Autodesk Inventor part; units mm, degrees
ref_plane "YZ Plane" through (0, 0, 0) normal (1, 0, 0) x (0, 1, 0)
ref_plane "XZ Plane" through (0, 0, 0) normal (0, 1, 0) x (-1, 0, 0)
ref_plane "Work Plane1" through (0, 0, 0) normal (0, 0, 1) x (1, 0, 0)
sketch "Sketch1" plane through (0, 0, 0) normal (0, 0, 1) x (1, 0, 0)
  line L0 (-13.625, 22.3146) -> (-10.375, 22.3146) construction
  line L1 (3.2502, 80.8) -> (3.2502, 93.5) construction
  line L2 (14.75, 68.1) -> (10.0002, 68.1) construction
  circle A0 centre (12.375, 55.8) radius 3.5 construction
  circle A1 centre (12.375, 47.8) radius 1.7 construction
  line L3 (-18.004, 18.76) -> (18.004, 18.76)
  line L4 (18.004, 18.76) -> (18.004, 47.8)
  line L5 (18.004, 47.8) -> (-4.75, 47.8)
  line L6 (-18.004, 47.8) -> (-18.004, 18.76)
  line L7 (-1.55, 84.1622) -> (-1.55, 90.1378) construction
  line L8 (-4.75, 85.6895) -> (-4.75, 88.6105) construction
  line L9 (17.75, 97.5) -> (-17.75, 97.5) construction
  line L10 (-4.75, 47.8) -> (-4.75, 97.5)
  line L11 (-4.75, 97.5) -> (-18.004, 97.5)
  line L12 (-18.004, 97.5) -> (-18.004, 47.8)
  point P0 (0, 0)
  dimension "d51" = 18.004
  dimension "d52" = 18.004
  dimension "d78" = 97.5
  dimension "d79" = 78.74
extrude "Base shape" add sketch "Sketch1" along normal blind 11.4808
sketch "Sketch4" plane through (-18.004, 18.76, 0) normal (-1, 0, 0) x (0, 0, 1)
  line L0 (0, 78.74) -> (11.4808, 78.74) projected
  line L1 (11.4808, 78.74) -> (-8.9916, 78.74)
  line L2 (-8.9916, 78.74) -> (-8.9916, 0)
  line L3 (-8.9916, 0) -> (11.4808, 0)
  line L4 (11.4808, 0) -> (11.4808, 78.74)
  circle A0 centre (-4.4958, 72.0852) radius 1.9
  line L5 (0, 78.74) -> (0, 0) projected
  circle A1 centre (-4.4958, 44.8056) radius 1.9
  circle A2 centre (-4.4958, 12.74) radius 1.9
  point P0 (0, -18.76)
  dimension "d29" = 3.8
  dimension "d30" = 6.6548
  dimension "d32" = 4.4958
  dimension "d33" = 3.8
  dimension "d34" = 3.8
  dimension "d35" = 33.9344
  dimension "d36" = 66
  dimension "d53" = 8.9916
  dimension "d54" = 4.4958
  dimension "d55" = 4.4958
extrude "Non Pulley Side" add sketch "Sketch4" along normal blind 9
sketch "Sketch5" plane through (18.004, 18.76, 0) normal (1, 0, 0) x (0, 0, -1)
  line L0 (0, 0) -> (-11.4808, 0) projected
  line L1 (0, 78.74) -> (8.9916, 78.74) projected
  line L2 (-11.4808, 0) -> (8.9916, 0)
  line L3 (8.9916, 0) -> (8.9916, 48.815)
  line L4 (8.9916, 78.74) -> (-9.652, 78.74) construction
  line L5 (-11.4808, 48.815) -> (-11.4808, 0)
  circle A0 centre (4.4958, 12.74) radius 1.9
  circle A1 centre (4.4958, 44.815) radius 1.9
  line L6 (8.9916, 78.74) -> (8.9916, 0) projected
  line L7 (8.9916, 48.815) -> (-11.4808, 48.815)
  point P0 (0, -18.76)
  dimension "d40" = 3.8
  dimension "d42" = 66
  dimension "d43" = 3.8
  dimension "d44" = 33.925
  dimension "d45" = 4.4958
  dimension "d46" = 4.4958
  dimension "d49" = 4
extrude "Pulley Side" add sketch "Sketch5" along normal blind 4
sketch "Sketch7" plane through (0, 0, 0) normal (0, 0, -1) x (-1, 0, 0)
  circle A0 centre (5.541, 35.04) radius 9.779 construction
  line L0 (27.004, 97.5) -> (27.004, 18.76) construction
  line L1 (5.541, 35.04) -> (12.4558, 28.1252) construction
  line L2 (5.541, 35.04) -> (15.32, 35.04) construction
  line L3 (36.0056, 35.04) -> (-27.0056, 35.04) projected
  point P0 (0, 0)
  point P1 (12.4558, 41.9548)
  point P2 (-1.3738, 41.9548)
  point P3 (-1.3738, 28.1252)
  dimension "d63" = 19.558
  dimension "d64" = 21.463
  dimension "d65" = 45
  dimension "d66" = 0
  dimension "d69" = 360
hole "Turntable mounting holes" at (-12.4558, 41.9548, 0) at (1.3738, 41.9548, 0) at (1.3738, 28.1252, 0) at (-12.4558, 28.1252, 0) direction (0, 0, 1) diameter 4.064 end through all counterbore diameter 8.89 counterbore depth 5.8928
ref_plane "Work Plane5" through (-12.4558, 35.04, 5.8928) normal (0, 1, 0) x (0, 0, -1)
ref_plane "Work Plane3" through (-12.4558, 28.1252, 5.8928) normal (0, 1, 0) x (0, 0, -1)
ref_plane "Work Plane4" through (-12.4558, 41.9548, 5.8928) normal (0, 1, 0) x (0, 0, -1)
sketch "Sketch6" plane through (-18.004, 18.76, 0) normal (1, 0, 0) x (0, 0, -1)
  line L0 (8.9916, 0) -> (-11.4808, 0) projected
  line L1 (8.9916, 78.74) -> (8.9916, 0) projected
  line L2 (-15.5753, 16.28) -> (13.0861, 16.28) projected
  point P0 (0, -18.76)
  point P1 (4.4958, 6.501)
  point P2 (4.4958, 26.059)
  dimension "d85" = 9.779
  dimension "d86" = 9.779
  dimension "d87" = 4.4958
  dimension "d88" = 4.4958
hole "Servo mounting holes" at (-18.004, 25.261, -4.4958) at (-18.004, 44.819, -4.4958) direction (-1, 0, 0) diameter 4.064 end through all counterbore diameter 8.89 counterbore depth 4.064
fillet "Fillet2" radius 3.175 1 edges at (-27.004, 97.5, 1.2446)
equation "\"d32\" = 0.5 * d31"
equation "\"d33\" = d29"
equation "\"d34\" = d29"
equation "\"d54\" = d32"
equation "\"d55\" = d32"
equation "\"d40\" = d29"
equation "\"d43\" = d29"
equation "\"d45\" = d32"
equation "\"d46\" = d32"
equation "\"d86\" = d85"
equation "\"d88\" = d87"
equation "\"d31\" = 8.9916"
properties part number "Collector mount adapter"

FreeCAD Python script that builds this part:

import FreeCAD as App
import Part
import Sketcher
Q = App.Units.Quantity


def edges_at(feature, points):
    """Names of the edges that pass closest to the given points."""
    edges = feature.Shape.Edges
    near = lambda p: min(range(len(edges)), key=lambda i: edges[i].distToShape(Part.Vertex(*p))[0])
    return sorted({f"Edge{near(p) + 1}" for p in points})


def add_polygon(sketch, points):
    """Adds a closed chain of lines whose ends are joined by coincident constraints."""
    first, n = sketch.GeometryCount, len(points)
    for a, b in zip(points, points[1:] + points[:1]):
        sketch.addGeometry(Part.LineSegment(App.Vector(*a, 0), App.Vector(*b, 0)), False)
    for i in range(n):
        sketch.addConstraint(Sketcher.Constraint("Coincident", first + i, 2, first + (i + 1) % n, 1))

doc = App.newDocument("Part")
body = doc.addObject("PartDesign::Body", "Body")

# Sketch on XY plane
sketch1 = body.newObject("Sketcher::SketchObject", "Sketch")
sketch1.AttachmentSupport = (doc.getObject("XY_Plane"), [""])
sketch1.MapMode = "FlatFace"
add_polygon(sketch1, [(-18.004, 97.5), (-18.004, 18.76), (18.004, 18.76), (18.004, 47.8), (-4.75, 47.8), (-4.75, 97.5)])  # lines 0-5
sketch1.addConstraint(Sketcher.Constraint("Vertical", 0))
sketch1.addConstraint(Sketcher.Constraint("Horizontal", 1))
sketch1.addConstraint(Sketcher.Constraint("Vertical", 2))
sketch1.addConstraint(Sketcher.Constraint("Horizontal", 3))
sketch1.addConstraint(Sketcher.Constraint("Vertical", 4))
sketch1.addConstraint(Sketcher.Constraint("Horizontal", 5))
sketch1.addConstraint(Sketcher.Constraint("DistanceY", 0, 2, 0, 1, Q("3.1 in")))
sketch1.addConstraint(Sketcher.Constraint("DistanceX", 0, 2, -1, 1, Q("18.004 mm")))
sketch1.addConstraint(Sketcher.Constraint("DistanceX", -1, 1, 1, 2, Q("18.004 mm")))
sketch1.addConstraint(Sketcher.Constraint("DistanceY", -1, 1, 4, 2, Q("97.5 mm")))
sketch1.addConstraint(Sketcher.Constraint("DistanceX", 5, 2, 5, 1, Q("0.5218 in")))
sketch1.addConstraint(Sketcher.Constraint("DistanceY", 2, 1, 2, 2, Q("1.1433 in")))
pad1 = body.newObject("PartDesign::Pad", "Pad")
pad1.Profile = sketch1
pad1.Length = Q("0.452 in")

# Sketch on YZ plane
sketch2 = body.newObject("Sketcher::SketchObject", "Sketch001")
sketch2.AttachmentSupport = (doc.getObject("YZ_Plane"), [""])
sketch2.MapMode = "FlatFace"
sketch2.AttachmentOffset = App.Placement(App.Vector(0, 0, -18.004), App.Rotation())
add_polygon(sketch2, [(18.76, -8.9916), (18.76, 11.4808), (97.5, 11.4808), (97.5, -8.9916)])  # lines 0-3
sketch2.addGeometry(Part.Circle(App.Vector(31.5, -4.4958, 0), App.Vector(0, 0, 1), 1.9), False)  # 4
sketch2.addGeometry(Part.Circle(App.Vector(63.5656, -4.4958, 0), App.Vector(0, 0, 1), 1.9), False)  # 5
sketch2.addGeometry(Part.Circle(App.Vector(90.8452, -4.4958, 0), App.Vector(0, 0, 1), 1.9), False)  # 6
sketch2.addConstraint(Sketcher.Constraint("Vertical", 0))
sketch2.addConstraint(Sketcher.Constraint("Horizontal", 1))
sketch2.addConstraint(Sketcher.Constraint("Vertical", 2))
sketch2.addConstraint(Sketcher.Constraint("Horizontal", 3))
sketch2.addConstraint(Sketcher.Constraint("Equal", 4, 5))
sketch2.addConstraint(Sketcher.Constraint("Equal", 5, 6))
sketch2.addConstraint(Sketcher.Constraint("Horizontal", 4, 3, 5, 3))
sketch2.addConstraint(Sketcher.Constraint("Horizontal", 5, 3, 6, 3))
sketch2.addConstraint(Sketcher.Constraint("Diameter", 4, Q("0.1496 in")))
sketch2.addConstraint(Sketcher.Constraint("DistanceX", 1, 1, 1, 2, Q("3.1 in")))
sketch2.addConstraint(Sketcher.Constraint("DistanceY", 4, 3, -1, 1, Q("0.177 in")))
sketch2.addConstraint(Sketcher.Constraint("DistanceY", 2, 2, -1, 1, Q("0.354 in")))
sketch2.addConstraint(Sketcher.Constraint("DistanceX", 6, 3, 1, 2, Q("0.262 in")))
sketch2.addConstraint(Sketcher.Constraint("DistanceX", 5, 3, 1, 2, Q("1.336 in")))
sketch2.addConstraint(Sketcher.Constraint("DistanceY", 0, 1, 0, 2, Q("0.806 in")))
sketch2.addConstraint(Sketcher.Constraint("DistanceX", 4, 3, 1, 2, Q("66 mm")))
sketch2.addConstraint(Sketcher.Constraint("DistanceX", -1, 1, 4, 3, Q("31.5 mm")))
pad2 = body.newObject("PartDesign::Pad", "Pad001")
pad2.Profile = sketch2
pad2.Length = 9
pad2.Reversed = True

# Sketch on YZ plane
sketch3 = body.newObject("Sketcher::SketchObject", "Sketch002")
sketch3.AttachmentSupport = (doc.getObject("YZ_Plane"), [""])
sketch3.MapMode = "FlatFace"
sketch3.AttachmentOffset = App.Placement(App.Vector(0, 0, 18.004), App.Rotation())
add_polygon(sketch3, [(18.76, 11.4808), (18.76, -8.9916), (67.575, -8.9916), (67.575, 11.4808)])  # lines 0-3
sketch3.addGeometry(Part.Circle(App.Vector(31.5, -4.4958, 0), App.Vector(0, 0, 1), 1.9), False)  # 4
sketch3.addGeometry(Part.Circle(App.Vector(63.575, -4.4958, 0), App.Vector(0, 0, 1), 1.9), False)  # 5
sketch3.addConstraint(Sketcher.Constraint("Vertical", 0))
sketch3.addConstraint(Sketcher.Constraint("Horizontal", 1))
sketch3.addConstraint(Sketcher.Constraint("Vertical", 2))
sketch3.addConstraint(Sketcher.Constraint("Horizontal", 3))
sketch3.addConstraint(Sketcher.Constraint("Equal", 4, 5))
sketch3.addConstraint(Sketcher.Constraint("Horizontal", 4, 3, 5, 3))
sketch3.addConstraint(Sketcher.Constraint("Diameter", 4, Q("0.1496 in")))
sketch3.addConstraint(Sketcher.Constraint("DistanceY", 4, 3, -1, 1, Q("0.177 in")))
sketch3.addConstraint(Sketcher.Constraint("DistanceY", 0, 2, 4, 3, Q("0.177 in")))
sketch3.addConstraint(Sketcher.Constraint("DistanceY", 0, 2, 0, 1, Q("0.806 in")))
sketch3.addConstraint(Sketcher.Constraint("DistanceX", 5, 3, 1, 2, Q("4 mm")))
sketch3.addConstraint(Sketcher.Constraint("DistanceX", 1, 1, 1, 2, Q("48.815 mm")))
sketch3.addConstraint(Sketcher.Constraint("DistanceX", 4, 3, 5, 3, Q("1.2628 in")))
sketch3.addConstraint(Sketcher.Constraint("DistanceX", -1, 1, 4, 3, Q("31.5 mm")))
pad3 = body.newObject("PartDesign::Pad", "Pad002")
pad3.Profile = sketch3
pad3.Length = 4

# Sketch on XY plane
sketch4 = body.newObject("Sketcher::SketchObject", "Sketch003")
sketch4.AttachmentSupport = (doc.getObject("XY_Plane"), [""])
sketch4.MapMode = "FlatFace"
sketch4.addGeometry(Part.Circle(App.Vector(-12.4558, 41.9548, 0), App.Vector(0, 0, 1), 2.032), False)
sketch4.addGeometry(Part.Circle(App.Vector(1.3738, 41.9548, 0), App.Vector(0, 0, 1), 2.032), False)
sketch4.addGeometry(Part.Circle(App.Vector(1.3738, 28.1252, 0), App.Vector(0, 0, 1), 2.032), False)
sketch4.addGeometry(Part.Circle(App.Vector(-12.4558, 28.1252, 0), App.Vector(0, 0, 1), 2.032), False)
sketch4.addConstraint(Sketcher.Constraint("Equal", 0, 1))
sketch4.addConstraint(Sketcher.Constraint("Equal", 1, 2))
sketch4.addConstraint(Sketcher.Constraint("Equal", 2, 3))
sketch4.addConstraint(Sketcher.Constraint("Horizontal", 0, 3, 1, 3))
sketch4.addConstraint(Sketcher.Constraint("Horizontal", 2, 3, 3, 3))
sketch4.addConstraint(Sketcher.Constraint("Vertical", 1, 3, 2, 3))
sketch4.addConstraint(Sketcher.Constraint("Vertical", 0, 3, 3, 3))
sketch4.addConstraint(Sketcher.Constraint("Diameter", 0, Q("0.16 in")))
sketch4.addConstraint(Sketcher.Constraint("DistanceY", -1, 1, 2, 3, Q("1.1073 in")))
sketch4.addConstraint(Sketcher.Constraint("DistanceX", 0, 3, -1, 1, Q("12.4558 mm")))
sketch4.addConstraint(Sketcher.Constraint("DistanceY", -1, 1, 0, 3, Q("41.9548 mm")))
sketch4.addConstraint(Sketcher.Constraint("DistanceX", -1, 1, 1, 3, Q("1.3738 mm")))
doc.recompute()
hole = body.newObject("PartDesign::Hole", "Hole")
hole.Profile = sketch4
hole.ThreadType = "None"
hole.Diameter = Q("0.16 in")
hole.DepthType = "ThroughAll"
hole.HoleCutType = "Counterbore"
hole.HoleCutDiameter = Q("0.35 in")
hole.HoleCutDepth = Q("0.232 in")
hole.Reversed = True

# Sketch on YZ plane
sketch5 = body.newObject("Sketcher::SketchObject", "Sketch004")
sketch5.AttachmentSupport = (doc.getObject("YZ_Plane"), [""])
sketch5.MapMode = "FlatFace"
sketch5.AttachmentOffset = App.Placement(App.Vector(0, 0, -18.004), App.Rotation())
sketch5.addGeometry(Part.Circle(App.Vector(25.261, -4.4958, 0), App.Vector(0, 0, 1), 2.032), False)
sketch5.addGeometry(Part.Circle(App.Vector(44.819, -4.4958, 0), App.Vector(0, 0, 1), 2.032), False)
sketch5.addConstraint(Sketcher.Constraint("Equal", 0, 1))
sketch5.addConstraint(Sketcher.Constraint("Horizontal", 0, 3, 1, 3))
sketch5.addConstraint(Sketcher.Constraint("Diameter", 0, Q("0.16 in")))
sketch5.addConstraint(Sketcher.Constraint("DistanceX", 0, 3, 1, 3, Q("0.77 in")))
sketch5.addConstraint(Sketcher.Constraint("DistanceY", 0, 3, -1, 1, Q("0.177 in")))
sketch5.addConstraint(Sketcher.Constraint("DistanceX", -1, 1, 0, 3, Q("25.261 mm")))
doc.recompute()
hole2 = body.newObject("PartDesign::Hole", "Hole001")
hole2.Profile = sketch5
hole2.ThreadType = "None"
hole2.Diameter = Q("0.16 in")
hole2.DepthType = "ThroughAll"
hole2.HoleCutType = "Counterbore"
hole2.HoleCutDiameter = Q("0.35 in")
hole2.HoleCutDepth = Q("0.16 in")
doc.recompute()

fillet = body.newObject("PartDesign::Fillet", "Fillet")
fillet.Base = (hole2, edges_at(hole2, [(-27.004, 97.5, 1.245)]))
fillet.Radius = Q("0.125 in")

doc.recompute()
